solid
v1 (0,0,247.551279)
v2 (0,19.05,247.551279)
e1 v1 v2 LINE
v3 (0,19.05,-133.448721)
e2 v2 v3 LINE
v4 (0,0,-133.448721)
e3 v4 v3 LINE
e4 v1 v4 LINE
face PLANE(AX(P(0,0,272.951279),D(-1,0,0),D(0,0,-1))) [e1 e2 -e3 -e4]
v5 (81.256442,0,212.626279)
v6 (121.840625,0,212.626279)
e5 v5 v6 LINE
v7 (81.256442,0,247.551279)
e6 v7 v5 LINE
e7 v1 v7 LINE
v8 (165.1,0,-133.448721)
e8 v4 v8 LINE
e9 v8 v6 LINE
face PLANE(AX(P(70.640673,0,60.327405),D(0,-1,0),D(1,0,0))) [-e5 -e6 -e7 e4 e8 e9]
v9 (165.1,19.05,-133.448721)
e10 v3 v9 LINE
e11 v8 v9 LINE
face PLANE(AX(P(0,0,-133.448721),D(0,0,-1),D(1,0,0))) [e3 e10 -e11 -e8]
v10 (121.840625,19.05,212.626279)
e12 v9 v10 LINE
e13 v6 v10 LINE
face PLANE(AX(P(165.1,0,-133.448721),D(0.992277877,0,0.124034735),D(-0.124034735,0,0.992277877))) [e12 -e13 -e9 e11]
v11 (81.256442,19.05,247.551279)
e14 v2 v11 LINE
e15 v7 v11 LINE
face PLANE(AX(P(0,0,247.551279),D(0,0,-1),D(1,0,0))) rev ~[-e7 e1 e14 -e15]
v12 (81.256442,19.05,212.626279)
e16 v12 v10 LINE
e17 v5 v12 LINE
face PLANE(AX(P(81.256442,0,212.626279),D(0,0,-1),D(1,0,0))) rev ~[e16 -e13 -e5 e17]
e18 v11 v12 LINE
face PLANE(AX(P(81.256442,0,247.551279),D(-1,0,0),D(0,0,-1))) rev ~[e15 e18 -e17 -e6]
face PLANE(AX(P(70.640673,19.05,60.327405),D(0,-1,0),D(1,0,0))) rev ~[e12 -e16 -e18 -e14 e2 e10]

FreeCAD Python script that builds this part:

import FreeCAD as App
import Part
import Sketcher
Q = App.Units.Quantity

doc = App.newDocument("Part")
params = doc.addObject("Spreadsheet::Sheet", "Params")
for row, (alias, value) in enumerate([
    ("sketch1_height", "16 in"),
    ("sketch1_width", "4.5 in"),
    ("sketch1_width2", "6.5 in"),
    ("pad1_length", "0.75 in"),
    ("sketch2_height", "1 in"),
    ("sketch2_width", "4.5 in"),
    ("sketch2_height2", "1.375 in"),
], start=1):
    params.set(f"A{row}", alias)
    params.set(f"B{row}", "=" + value)
    params.setAlias(f"B{row}", alias)

body = doc.addObject("PartDesign::Body", "Body")

sketch1 = body.newObject("Sketcher::SketchObject", "Sketch")
sketch1.AttachmentSupport = (doc.getObject("XZ_Plane"), [""])
sketch1.MapMode = "FlatFace"
sketch1.addGeometry([
    Part.LineSegment(App.Vector(114, 273, 0), App.Vector(0, 273, 0)),
    Part.LineSegment(App.Vector(0, 273, 0), App.Vector(0, -133, 0)),
    Part.LineSegment(App.Vector(0, -133, 0), App.Vector(165, -133, 0)),
    Part.LineSegment(App.Vector(165, -133, 0), App.Vector(114, 273, 0)),
], False)
sketch1.addConstraint([
    Sketcher.Constraint("Coincident", 0, 2, 1, 1),
    Sketcher.Constraint("Coincident", 1, 2, 2, 1),
    Sketcher.Constraint("Coincident", 2, 2, 3, 1),
    Sketcher.Constraint("Coincident", 3, 2, 0, 1),
    Sketcher.Constraint("Horizontal", 0),
    Sketcher.Constraint("Vertical", 1),
    Sketcher.Constraint("Horizontal", 2),
    Sketcher.Constraint("PointOnObject", 0, 2, -2),
    Sketcher.Constraint("DistanceY", 1, 2, 1, 1, Q("16 in")),
    Sketcher.Constraint("DistanceX", 0, 2, 0, 1, Q("4.5 in")),
    Sketcher.Constraint("DistanceX", 2, 1, 2, 2, Q("6.5 in")),
    Sketcher.Constraint("DistanceY", -1, 1, 0, 2, 272.951279),
])
sketch1.setExpression("Constraints[8]", "Params.sketch1_height")
sketch1.setExpression("Constraints[9]", "Params.sketch1_width")
sketch1.setExpression("Constraints[10]", "Params.sketch1_width2")
pad1 = body.newObject("PartDesign::Pad", "Pad")
pad1.Profile = sketch1
pad1.setExpression("Length", "Params.pad1_length")
pad1.Reversed = True

sketch2 = body.newObject("Sketcher::SketchObject", "Sketch001")
sketch2.AttachmentSupport = (doc.getObject("XZ_Plane"), [""])
sketch2.MapMode = "FlatFace"
sketch2.addGeometry([
    Part.LineSegment(App.Vector(0, 273, 0), App.Vector(0, 248, 0)),
    Part.LineSegment(App.Vector(0, 248, 0), App.Vector(81, 248, 0)),
    Part.LineSegment(App.Vector(81, 248, 0), App.Vector(81, 213, 0)),
    Part.LineSegment(App.Vector(81, 213, 0), App.Vector(122, 213, 0)),
    Part.LineSegment(App.Vector(122, 213, 0), App.Vector(114, 273, 0)),
    Part.LineSegment(App.Vector(114, 273, 0), App.Vector(0, 273, 0)),
], False)
sketch2.addConstraint([
    Sketcher.Constraint("Coincident", 0, 2, 1, 1),
    Sketcher.Constraint("Coincident", 1, 2, 2, 1),
    Sketcher.Constraint("Coincident", 2, 2, 3, 1),
    Sketcher.Constraint("Coincident", 3, 2, 4, 1),
    Sketcher.Constraint("Coincident", 4, 2, 5, 1),
    Sketcher.Constraint("Coincident", 5, 2, 0, 1),
    Sketcher.Constraint("Vertical", 0),
    Sketcher.Constraint("Horizontal", 1),
    Sketcher.Constraint("Vertical", 2),
    Sketcher.Constraint("Horizontal", 3),
    Sketcher.Constraint("Horizontal", 5),
    Sketcher.Constraint("PointOnObject", 0, 2, -2),
    Sketcher.Constraint("DistanceY", 0, 2, 0, 1, Q("1 in")),
    Sketcher.Constraint("DistanceX", 5, 2, 5, 1, Q("4.5 in")),
    Sketcher.Constraint("DistanceY", 2, 2, 2, 1, Q("1.375 in")),
    Sketcher.Constraint("DistanceX", -1, 1, 3, 2, Q("4.796875 in")),
    Sketcher.Constraint("DistanceX", 1, 1, 1, 2, 81.256442),
    Sketcher.Constraint("DistanceY", -1, 1, 0, 2, 247.551279),
])
sketch2.setExpression("Constraints[12]", "Params.sketch2_height")
sketch2.setExpression("Constraints[13]", "Params.sketch2_width")
sketch2.setExpression("Constraints[14]", "Params.sketch2_height2")
pocket1 = body.newObject("PartDesign::Pocket", "Pocket")
pocket1.Profile = sketch2
pocket1.Type = "ThroughAll"

doc.recompute()
